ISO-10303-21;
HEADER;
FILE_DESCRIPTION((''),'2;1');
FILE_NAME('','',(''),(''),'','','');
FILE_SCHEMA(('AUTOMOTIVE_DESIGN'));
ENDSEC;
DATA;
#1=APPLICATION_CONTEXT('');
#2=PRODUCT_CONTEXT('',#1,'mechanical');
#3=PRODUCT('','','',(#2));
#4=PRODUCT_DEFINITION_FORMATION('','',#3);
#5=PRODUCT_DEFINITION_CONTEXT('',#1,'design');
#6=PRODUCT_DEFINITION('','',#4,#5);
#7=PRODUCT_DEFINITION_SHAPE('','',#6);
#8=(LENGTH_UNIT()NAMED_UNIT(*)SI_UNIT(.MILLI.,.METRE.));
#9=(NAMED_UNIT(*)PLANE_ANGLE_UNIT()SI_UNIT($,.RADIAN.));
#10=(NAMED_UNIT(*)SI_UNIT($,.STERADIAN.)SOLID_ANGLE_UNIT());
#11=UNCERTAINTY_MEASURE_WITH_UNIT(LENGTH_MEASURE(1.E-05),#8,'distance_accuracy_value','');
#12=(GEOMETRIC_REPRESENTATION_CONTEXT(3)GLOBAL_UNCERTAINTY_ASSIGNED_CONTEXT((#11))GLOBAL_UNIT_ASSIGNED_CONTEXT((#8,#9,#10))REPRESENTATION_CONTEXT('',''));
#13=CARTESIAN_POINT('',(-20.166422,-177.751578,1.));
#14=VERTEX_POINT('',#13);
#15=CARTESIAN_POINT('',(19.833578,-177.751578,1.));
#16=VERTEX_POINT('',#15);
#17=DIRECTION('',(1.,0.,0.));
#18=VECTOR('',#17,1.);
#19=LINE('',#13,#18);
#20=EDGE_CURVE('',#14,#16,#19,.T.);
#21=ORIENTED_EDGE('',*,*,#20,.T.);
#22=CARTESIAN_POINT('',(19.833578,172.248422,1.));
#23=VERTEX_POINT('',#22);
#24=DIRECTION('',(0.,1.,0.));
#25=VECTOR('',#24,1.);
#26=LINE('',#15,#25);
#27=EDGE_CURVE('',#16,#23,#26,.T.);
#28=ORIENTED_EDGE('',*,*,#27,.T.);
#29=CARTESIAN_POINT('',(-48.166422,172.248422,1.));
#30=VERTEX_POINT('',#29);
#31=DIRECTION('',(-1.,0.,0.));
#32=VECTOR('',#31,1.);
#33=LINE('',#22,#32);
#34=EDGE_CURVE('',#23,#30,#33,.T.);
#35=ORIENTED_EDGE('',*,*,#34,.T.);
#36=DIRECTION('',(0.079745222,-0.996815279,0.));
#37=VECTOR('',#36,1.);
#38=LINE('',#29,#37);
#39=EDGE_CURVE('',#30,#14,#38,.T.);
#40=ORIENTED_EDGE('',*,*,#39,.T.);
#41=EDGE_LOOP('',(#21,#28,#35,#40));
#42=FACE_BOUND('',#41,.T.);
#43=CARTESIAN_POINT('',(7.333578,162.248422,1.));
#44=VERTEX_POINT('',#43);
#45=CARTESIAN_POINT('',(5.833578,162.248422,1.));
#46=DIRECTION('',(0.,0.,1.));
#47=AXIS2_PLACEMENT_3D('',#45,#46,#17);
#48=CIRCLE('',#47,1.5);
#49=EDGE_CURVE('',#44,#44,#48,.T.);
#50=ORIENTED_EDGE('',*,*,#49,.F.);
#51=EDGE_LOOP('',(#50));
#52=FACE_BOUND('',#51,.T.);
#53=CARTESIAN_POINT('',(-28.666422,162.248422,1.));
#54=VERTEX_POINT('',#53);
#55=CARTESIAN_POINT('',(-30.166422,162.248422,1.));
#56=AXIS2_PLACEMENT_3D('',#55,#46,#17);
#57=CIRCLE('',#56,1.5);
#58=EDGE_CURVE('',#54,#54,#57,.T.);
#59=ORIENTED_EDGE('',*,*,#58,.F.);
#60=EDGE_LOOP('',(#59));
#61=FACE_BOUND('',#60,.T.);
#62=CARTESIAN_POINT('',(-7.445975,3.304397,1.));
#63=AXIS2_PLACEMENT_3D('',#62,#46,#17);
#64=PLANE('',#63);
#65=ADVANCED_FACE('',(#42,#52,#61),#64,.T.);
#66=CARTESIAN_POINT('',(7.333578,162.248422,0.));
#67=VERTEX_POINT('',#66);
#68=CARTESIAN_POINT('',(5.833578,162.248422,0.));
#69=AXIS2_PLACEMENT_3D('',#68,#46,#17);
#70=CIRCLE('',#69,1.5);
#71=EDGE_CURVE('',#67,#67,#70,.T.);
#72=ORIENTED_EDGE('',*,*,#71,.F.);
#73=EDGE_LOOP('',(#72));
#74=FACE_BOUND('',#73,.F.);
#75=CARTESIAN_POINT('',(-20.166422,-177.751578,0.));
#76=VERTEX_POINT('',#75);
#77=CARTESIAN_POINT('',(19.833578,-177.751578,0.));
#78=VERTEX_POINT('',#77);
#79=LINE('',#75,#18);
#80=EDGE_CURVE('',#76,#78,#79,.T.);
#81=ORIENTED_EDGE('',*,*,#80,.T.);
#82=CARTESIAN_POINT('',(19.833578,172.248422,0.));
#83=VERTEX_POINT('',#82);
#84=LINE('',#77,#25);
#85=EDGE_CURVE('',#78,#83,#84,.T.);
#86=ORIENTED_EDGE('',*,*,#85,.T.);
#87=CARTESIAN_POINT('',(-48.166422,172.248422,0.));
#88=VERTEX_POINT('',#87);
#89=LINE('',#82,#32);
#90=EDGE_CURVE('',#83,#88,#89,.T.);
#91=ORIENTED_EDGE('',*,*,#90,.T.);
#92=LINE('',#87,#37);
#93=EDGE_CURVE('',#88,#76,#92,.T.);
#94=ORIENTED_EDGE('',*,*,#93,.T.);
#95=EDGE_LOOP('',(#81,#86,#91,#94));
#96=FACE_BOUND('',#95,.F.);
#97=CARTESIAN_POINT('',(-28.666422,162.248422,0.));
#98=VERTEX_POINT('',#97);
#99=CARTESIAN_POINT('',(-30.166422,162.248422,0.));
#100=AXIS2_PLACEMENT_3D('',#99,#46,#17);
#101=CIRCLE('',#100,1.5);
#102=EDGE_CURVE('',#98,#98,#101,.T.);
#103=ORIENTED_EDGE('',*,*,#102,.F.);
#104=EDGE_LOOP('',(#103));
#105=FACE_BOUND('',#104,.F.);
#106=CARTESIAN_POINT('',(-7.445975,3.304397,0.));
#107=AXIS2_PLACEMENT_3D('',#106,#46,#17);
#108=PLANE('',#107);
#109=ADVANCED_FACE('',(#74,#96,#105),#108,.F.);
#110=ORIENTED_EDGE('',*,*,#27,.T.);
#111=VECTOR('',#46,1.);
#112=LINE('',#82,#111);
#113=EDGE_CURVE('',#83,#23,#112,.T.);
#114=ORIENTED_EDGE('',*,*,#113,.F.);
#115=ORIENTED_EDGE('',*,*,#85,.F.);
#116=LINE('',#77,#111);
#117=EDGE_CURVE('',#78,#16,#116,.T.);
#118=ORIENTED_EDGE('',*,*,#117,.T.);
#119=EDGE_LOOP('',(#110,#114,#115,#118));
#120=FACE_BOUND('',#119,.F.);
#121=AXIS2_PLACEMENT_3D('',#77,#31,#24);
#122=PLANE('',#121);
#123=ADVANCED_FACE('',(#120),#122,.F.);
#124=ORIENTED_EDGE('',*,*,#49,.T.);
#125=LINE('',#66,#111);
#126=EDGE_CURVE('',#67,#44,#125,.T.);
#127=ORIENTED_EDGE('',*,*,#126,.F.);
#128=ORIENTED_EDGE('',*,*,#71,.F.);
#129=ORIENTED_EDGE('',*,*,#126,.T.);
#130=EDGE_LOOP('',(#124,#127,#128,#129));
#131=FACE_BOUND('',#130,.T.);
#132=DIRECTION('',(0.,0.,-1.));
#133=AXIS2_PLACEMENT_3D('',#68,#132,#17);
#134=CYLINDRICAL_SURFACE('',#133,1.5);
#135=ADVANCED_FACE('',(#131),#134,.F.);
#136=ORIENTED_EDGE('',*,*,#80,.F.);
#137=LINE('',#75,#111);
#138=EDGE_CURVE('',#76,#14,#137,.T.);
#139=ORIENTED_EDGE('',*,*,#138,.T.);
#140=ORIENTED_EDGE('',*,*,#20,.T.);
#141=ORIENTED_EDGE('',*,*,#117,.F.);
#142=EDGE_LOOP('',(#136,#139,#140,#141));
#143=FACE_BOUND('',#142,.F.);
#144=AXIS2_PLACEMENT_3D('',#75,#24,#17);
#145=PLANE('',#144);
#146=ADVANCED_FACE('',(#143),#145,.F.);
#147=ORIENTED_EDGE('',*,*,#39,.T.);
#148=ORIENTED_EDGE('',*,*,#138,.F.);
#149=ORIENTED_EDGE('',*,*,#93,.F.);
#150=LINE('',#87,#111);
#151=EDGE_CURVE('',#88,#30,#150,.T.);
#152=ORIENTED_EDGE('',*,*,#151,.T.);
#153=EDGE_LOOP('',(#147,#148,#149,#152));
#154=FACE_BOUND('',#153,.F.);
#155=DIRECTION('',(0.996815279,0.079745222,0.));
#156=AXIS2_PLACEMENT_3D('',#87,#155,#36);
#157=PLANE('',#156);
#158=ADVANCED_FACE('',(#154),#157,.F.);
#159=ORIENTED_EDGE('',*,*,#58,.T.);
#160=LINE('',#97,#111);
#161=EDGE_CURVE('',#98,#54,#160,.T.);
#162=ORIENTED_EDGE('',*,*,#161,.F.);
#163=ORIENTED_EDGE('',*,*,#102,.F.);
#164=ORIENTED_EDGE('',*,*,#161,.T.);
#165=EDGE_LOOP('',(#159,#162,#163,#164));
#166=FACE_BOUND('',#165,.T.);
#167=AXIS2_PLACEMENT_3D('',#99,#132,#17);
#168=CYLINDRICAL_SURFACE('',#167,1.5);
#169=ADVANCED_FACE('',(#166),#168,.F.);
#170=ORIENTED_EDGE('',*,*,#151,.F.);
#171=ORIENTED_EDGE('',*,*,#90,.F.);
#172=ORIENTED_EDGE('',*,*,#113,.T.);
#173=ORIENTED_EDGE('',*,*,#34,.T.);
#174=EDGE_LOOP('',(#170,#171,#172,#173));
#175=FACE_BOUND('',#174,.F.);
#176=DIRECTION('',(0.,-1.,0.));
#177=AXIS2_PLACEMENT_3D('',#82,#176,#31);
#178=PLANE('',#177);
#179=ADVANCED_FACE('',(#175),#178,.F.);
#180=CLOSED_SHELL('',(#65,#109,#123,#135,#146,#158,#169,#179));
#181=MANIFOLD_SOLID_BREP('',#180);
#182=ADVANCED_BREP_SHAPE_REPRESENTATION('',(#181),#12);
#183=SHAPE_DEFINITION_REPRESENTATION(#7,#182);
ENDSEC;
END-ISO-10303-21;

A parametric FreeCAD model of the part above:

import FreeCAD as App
import Part
import Sketcher

V = App.Vector

doc = App.newDocument("Part")
params = doc.addObject("Spreadsheet::Sheet", "Params")
for row, (alias, value) in enumerate([
    ("sketch1_diameter", "3 mm"),
    ("sketch1_width", "68 mm"),
    ("sketch1_width2", "40 mm"),
    ("sketch1_height", "350 mm"),
    ("pad1_length", "1 mm"),
], start=1):
    params.set(f"A{row}", alias)
    params.set(f"B{row}", "=" + value)
    params.setAlias(f"B{row}", alias)

body = doc.addObject("PartDesign::Body", "Body")

# Sketch on XY plane
sketch1 = body.newObject("Sketcher::SketchObject", "Sketch")
sketch1.AttachmentSupport = (doc.getObject("XY_Plane"), [""])
sketch1.MapMode = "FlatFace"
sketch1.addGeometry([
    Part.LineSegment(V(19.8, 172.2, 0), V(-48.2, 172.2, 0)),  # 0
    Part.LineSegment(V(-48.2, 172.2, 0), V(-20.2, -177.8, 0)),  # 1
    Part.LineSegment(V(-20.2, -177.8, 0), V(19.8, -177.8, 0)),  # 2
    Part.LineSegment(V(19.8, -177.8, 0), V(19.8, 172.2, 0)),  # 3
    Part.Circle(V(-30.2, 162.2, 0), V(0, 0, 1), 1.5),  # 4
    Part.Circle(V(5.8, 162.2, 0), V(0, 0, 1), 1.5),  # 5
], False)
sketch1.addConstraint([
    Sketcher.Constraint("Coincident", 0, 2, 1, 1),
    Sketcher.Constraint("Coincident", 1, 2, 2, 1),
    Sketcher.Constraint("Coincident", 2, 2, 3, 1),
    Sketcher.Constraint("Coincident", 3, 2, 0, 1),
    Sketcher.Constraint("Horizontal", 0),
    Sketcher.Constraint("Horizontal", 2),
    Sketcher.Constraint("Vertical", 3),
    Sketcher.Constraint("Equal", 4, 5),
    Sketcher.Constraint("Horizontal", 4, 3, 5, 3),
    Sketcher.Constraint("Diameter", 4, 3.0),
    Sketcher.Constraint("DistanceX", 0, 2, 0, 1, 68.0),
    Sketcher.Constraint("DistanceX", 2, 1, 2, 2, 40.0),
    Sketcher.Constraint("DistanceY", 3, 1, 3, 2, 350.0),
    Sketcher.Constraint("DistanceX", 4, 3, 5, 3, 36.0),
    Sketcher.Constraint("DistanceX", 0, 2, 4, 3, 18.0),
    Sketcher.Constraint("DistanceY", 4, 3, 0, 2, 10.0),
    Sketcher.Constraint("DistanceY", -1, 1, 4, 3, 162.248422),
    Sketcher.Constraint("DistanceX", 0, 2, -1, 1, 48.166422),
])
sketch1.setExpression("Constraints[9]", "Params.sketch1_diameter")
sketch1.setExpression("Constraints[10]", "Params.sketch1_width")
sketch1.setExpression("Constraints[11]", "Params.sketch1_width2")
sketch1.setExpression("Constraints[12]", "Params.sketch1_height")
pad1 = body.newObject("PartDesign::Pad", "Pad")
pad1.Profile = sketch1
pad1.setExpression("Length", "Params.pad1_length")

doc.recompute()
